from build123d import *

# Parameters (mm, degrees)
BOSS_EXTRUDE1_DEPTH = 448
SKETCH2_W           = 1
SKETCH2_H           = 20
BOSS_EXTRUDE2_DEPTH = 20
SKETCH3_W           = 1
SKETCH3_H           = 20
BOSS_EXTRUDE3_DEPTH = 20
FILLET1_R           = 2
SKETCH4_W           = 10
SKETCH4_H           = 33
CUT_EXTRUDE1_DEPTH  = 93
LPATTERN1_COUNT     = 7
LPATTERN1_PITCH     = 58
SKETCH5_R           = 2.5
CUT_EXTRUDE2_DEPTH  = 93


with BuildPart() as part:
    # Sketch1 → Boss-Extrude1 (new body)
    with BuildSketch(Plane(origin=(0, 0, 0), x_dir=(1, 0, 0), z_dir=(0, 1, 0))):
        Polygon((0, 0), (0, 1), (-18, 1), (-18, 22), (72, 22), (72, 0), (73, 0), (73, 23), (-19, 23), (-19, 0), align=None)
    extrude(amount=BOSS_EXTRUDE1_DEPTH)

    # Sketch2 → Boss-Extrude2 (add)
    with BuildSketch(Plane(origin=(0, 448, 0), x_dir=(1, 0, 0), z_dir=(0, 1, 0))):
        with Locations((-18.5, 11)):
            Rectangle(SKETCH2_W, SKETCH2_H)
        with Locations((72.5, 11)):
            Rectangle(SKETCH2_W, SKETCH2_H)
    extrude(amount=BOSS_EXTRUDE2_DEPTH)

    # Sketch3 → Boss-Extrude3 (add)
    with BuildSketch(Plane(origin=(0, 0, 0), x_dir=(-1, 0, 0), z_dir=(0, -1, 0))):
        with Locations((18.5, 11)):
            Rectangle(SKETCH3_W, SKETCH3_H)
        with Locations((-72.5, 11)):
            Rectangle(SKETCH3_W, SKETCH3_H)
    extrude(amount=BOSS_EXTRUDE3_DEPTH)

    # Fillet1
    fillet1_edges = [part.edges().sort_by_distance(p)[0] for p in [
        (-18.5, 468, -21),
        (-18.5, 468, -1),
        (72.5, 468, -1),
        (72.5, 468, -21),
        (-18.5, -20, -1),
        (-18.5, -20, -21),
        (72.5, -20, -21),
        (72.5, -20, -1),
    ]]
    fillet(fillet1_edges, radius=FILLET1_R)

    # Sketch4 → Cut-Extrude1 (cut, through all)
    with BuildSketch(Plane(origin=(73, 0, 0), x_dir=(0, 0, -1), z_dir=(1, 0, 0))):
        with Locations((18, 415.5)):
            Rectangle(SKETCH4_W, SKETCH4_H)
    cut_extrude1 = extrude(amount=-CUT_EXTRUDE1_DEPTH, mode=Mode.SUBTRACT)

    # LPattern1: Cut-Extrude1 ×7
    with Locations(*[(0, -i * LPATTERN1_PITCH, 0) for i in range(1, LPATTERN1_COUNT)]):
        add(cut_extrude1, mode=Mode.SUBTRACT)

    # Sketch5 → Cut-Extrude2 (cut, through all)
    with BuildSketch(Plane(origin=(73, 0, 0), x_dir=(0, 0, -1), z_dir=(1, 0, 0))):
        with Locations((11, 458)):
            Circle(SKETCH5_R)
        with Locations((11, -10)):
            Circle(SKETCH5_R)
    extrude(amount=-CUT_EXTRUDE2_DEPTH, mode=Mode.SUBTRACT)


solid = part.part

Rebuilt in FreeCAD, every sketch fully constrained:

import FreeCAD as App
import Part
import Sketcher

V = App.Vector


def edges_at(feature, points):
    """Names of the edges that pass closest to the given points."""
    edges = feature.Shape.Edges
    near = lambda p: min(range(len(edges)), key=lambda i: edges[i].distToShape(Part.Vertex(*p))[0])
    return sorted({f"Edge{near(p) + 1}" for p in points})

doc = App.newDocument("Part")
body = doc.addObject("PartDesign::Body", "Body")

# Sketch on XZ plane
sketch1 = body.newObject("Sketcher::SketchObject", "Sketch")
sketch1.AttachmentSupport = (doc.getObject("XZ_Plane"), [""])
sketch1.MapMode = "FlatFace"
sketch1.addGeometry(Part.LineSegment(V(0, 0, 0), V(0, -1, 0)), False)
sketch1.addGeometry(Part.LineSegment(V(0, -1, 0), V(-18, -1, 0)), False)
sketch1.addGeometry(Part.LineSegment(V(-18, -1, 0), V(-18, -22, 0)), False)
sketch1.addGeometry(Part.LineSegment(V(-18, -22, 0), V(72, -22, 0)), False)
sketch1.addGeometry(Part.LineSegment(V(72, -22, 0), V(72, 0, 0)), False)
sketch1.addGeometry(Part.LineSegment(V(72, 0, 0), V(73, 0, 0)), False)
sketch1.addGeometry(Part.LineSegment(V(73, 0, 0), V(73, -23, 0)), False)
sketch1.addGeometry(Part.LineSegment(V(73, -23, 0), V(-19, -23, 0)), False)
sketch1.addGeometry(Part.LineSegment(V(-19, -23, 0), V(-19, 0, 0)), False)
sketch1.addGeometry(Part.LineSegment(V(-19, 0, 0), V(0, 0, 0)), False)
sketch1.addConstraint(Sketcher.Constraint("Coincident", 0, 2, 1, 1))
sketch1.addConstraint(Sketcher.Constraint("Coincident", 1, 2, 2, 1))
sketch1.addConstraint(Sketcher.Constraint("Coincident", 2, 2, 3, 1))
sketch1.addConstraint(Sketcher.Constraint("Coincident", 3, 2, 4, 1))
sketch1.addConstraint(Sketcher.Constraint("Coincident", 4, 2, 5, 1))
sketch1.addConstraint(Sketcher.Constraint("Coincident", 5, 2, 6, 1))
sketch1.addConstraint(Sketcher.Constraint("Coincident", 6, 2, 7, 1))
sketch1.addConstraint(Sketcher.Constraint("Coincident", 7, 2, 8, 1))
sketch1.addConstraint(Sketcher.Constraint("Coincident", 8, 2, 9, 1))
sketch1.addConstraint(Sketcher.Constraint("Coincident", 9, 2, 0, 1))
sketch1.addConstraint(Sketcher.Constraint("Vertical", 0))
sketch1.addConstraint(Sketcher.Constraint("Horizontal", 1))
sketch1.addConstraint(Sketcher.Constraint("Vertical", 2))
sketch1.addConstraint(Sketcher.Constraint("Horizontal", 3))
sketch1.addConstraint(Sketcher.Constraint("Vertical", 4))
sketch1.addConstraint(Sketcher.Constraint("Horizontal", 5))
sketch1.addConstraint(Sketcher.Constraint("Vertical", 6))
sketch1.addConstraint(Sketcher.Constraint("Horizontal", 7))
sketch1.addConstraint(Sketcher.Constraint("Vertical", 8))
sketch1.addConstraint(Sketcher.Constraint("Horizontal", 9))
sketch1.addConstraint(Sketcher.Constraint("Coincident", 9, 2, -1, 1))
sketch1.addConstraint(Sketcher.Constraint("PointOnObject", 4, 2, -1))
sketch1.addConstraint(Sketcher.Constraint("Equal", 5, 0))
sketch1.addConstraint(Sketcher.Constraint("DistanceX", 1, 2, 1, 1, 18.0))
sketch1.addConstraint(Sketcher.Constraint("DistanceX", 3, 1, 3, 2, 90.0))
sketch1.addConstraint(Sketcher.Constraint("DistanceX", 5, 1, 5, 2, 1.0))
sketch1.addConstraint(Sketcher.Constraint("DistanceX", 7, 2, 7, 1, 92.0))
sketch1.addConstraint(Sketcher.Constraint("DistanceY", 2, 2, 2, 1, 21.0))
sketch1.addConstraint(Sketcher.Constraint("DistanceY", 6, 2, 6, 1, 23.0))
pad1 = body.newObject("PartDesign::Pad", "Pad")
pad1.Profile = sketch1
pad1.Length = 448
pad1.Reversed = True

# Sketch on XZ plane
sketch2 = body.newObject("Sketcher::SketchObject", "Sketch001")
sketch2.AttachmentSupport = (doc.getObject("XZ_Plane"), [""])
sketch2.MapMode = "FlatFace"
sketch2.AttachmentOffset = App.Placement(V(0, 0, -448), App.Rotation())
sketch2.addGeometry(Part.LineSegment(V(-19, -21, 0), V(-19, -1, 0)), False)
sketch2.addGeometry(Part.LineSegment(V(-19, -1, 0), V(-18, -1, 0)), False)
sketch2.addGeometry(Part.LineSegment(V(-18, -1, 0), V(-18, -21, 0)), False)
sketch2.addGeometry(Part.LineSegment(V(-18, -21, 0), V(-19, -21, 0)), False)
sketch2.addGeometry(Part.LineSegment(V(72, -21, 0), V(72, -1, 0)), False)
sketch2.addGeometry(Part.LineSegment(V(72, -1, 0), V(73, -1, 0)), False)
sketch2.addGeometry(Part.LineSegment(V(73, -1, 0), V(73, -21, 0)), False)
sketch2.addGeometry(Part.LineSegment(V(73, -21, 0), V(72, -21, 0)), False)
sketch2.addConstraint(Sketcher.Constraint("Coincident", 0, 2, 1, 1))
sketch2.addConstraint(Sketcher.Constraint("Coincident", 1, 2, 2, 1))
sketch2.addConstraint(Sketcher.Constraint("Coincident", 2, 2, 3, 1))
sketch2.addConstraint(Sketcher.Constraint("Coincident", 3, 2, 0, 1))
sketch2.addConstraint(Sketcher.Constraint("Coincident", 4, 2, 5, 1))
sketch2.addConstraint(Sketcher.Constraint("Coincident", 5, 2, 6, 1))
sketch2.addConstraint(Sketcher.Constraint("Coincident", 6, 2, 7, 1))
sketch2.addConstraint(Sketcher.Constraint("Coincident", 7, 2, 4, 1))
sketch2.addConstraint(Sketcher.Constraint("Vertical", 0))
sketch2.addConstraint(Sketcher.Constraint("Horizontal", 1))
sketch2.addConstraint(Sketcher.Constraint("Vertical", 2))
sketch2.addConstraint(Sketcher.Constraint("Horizontal", 3))
sketch2.addConstraint(Sketcher.Constraint("Vertical", 4))
sketch2.addConstraint(Sketcher.Constraint("Horizontal", 5))
sketch2.addConstraint(Sketcher.Constraint("Vertical", 6))
sketch2.addConstraint(Sketcher.Constraint("Horizontal", 7))
sketch2.addConstraint(Sketcher.Constraint("Horizontal", 1, 2, 4, 2))
sketch2.addConstraint(Sketcher.Constraint("Horizontal", 3, 2, 6, 2))
sketch2.addConstraint(Sketcher.Constraint("Equal", 3, 5))
sketch2.addConstraint(Sketcher.Constraint("DistanceX", 1, 1, 1, 2, 1.0))
sketch2.addConstraint(Sketcher.Constraint("DistanceY", 0, 1, 0, 2, 20.0))
sketch2.addConstraint(Sketcher.Constraint("DistanceX", 0, 2, -1, 1, 19.0))
sketch2.addConstraint(Sketcher.Constraint("DistanceY", 0, 2, -1, 1, 1.0))
sketch2.addConstraint(Sketcher.Constraint("DistanceX", -1, 1, 4, 2, 72.0))
pad2 = body.newObject("PartDesign::Pad", "Pad001")
pad2.Profile = sketch2
pad2.Length = 20
pad2.Reversed = True

# Sketch on XZ plane
sketch3 = body.newObject("Sketcher::SketchObject", "Sketch002")
sketch3.AttachmentSupport = (doc.getObject("XZ_Plane"), [""])
sketch3.MapMode = "FlatFace"
sketch3.addGeometry(Part.LineSegment(V(-18, -21, 0), V(-18, -1, 0)), False)
sketch3.addGeometry(Part.LineSegment(V(-18, -1, 0), V(-19, -1, 0)), False)
sketch3.addGeometry(Part.LineSegment(V(-19, -1, 0), V(-19, -21, 0)), False)
sketch3.addGeometry(Part.LineSegment(V(-19, -21, 0), V(-18, -21, 0)), False)
sketch3.addGeometry(Part.LineSegment(V(73, -21, 0), V(73, -1, 0)), False)
sketch3.addGeometry(Part.LineSegment(V(73, -1, 0), V(72, -1, 0)), False)
sketch3.addGeometry(Part.LineSegment(V(72, -1, 0), V(72, -21, 0)), False)
sketch3.addGeometry(Part.LineSegment(V(72, -21, 0), V(73, -21, 0)), False)
sketch3.addConstraint(Sketcher.Constraint("Coincident", 0, 2, 1, 1))
sketch3.addConstraint(Sketcher.Constraint("Coincident", 1, 2, 2, 1))
sketch3.addConstraint(Sketcher.Constraint("Coincident", 2, 2, 3, 1))
sketch3.addConstraint(Sketcher.Constraint("Coincident", 3, 2, 0, 1))
sketch3.addConstraint(Sketcher.Constraint("Coincident", 4, 2, 5, 1))
sketch3.addConstraint(Sketcher.Constraint("Coincident", 5, 2, 6, 1))
sketch3.addConstraint(Sketcher.Constraint("Coincident", 6, 2, 7, 1))
sketch3.addConstraint(Sketcher.Constraint("Coincident", 7, 2, 4, 1))
sketch3.addConstraint(Sketcher.Constraint("Vertical", 0))
sketch3.addConstraint(Sketcher.Constraint("Horizontal", 1))
sketch3.addConstraint(Sketcher.Constraint("Vertical", 2))
sketch3.addConstraint(Sketcher.Constraint("Horizontal", 3))
sketch3.addConstraint(Sketcher.Constraint("Vertical", 4))
sketch3.addConstraint(Sketcher.Constraint("Horizontal", 5))
sketch3.addConstraint(Sketcher.Constraint("Vertical", 6))
sketch3.addConstraint(Sketcher.Constraint("Horizontal", 7))
sketch3.addConstraint(Sketcher.Constraint("Horizontal", 1, 2, 4, 2))
sketch3.addConstraint(Sketcher.Constraint("Horizontal", 3, 2, 6, 2))
sketch3.addConstraint(Sketcher.Constraint("Equal", 3, 5))
sketch3.addConstraint(Sketcher.Constraint("DistanceX", 1, 2, 1, 1, 1.0))
sketch3.addConstraint(Sketcher.Constraint("DistanceY", 0, 1, 0, 2, 20.0))
sketch3.addConstraint(Sketcher.Constraint("DistanceX", 0, 2, -1, 1, 18.0))
sketch3.addConstraint(Sketcher.Constraint("DistanceY", 0, 2, -1, 1, 1.0))
sketch3.addConstraint(Sketcher.Constraint("DistanceX", -1, 1, 4, 2, 73.0))
pad3 = body.newObject("PartDesign::Pad", "Pad002")
pad3.Profile = sketch3
pad3.Length = 20
doc.recompute()

fillet = body.newObject("PartDesign::Fillet", "Fillet")
fillet.Base = (pad3, edges_at(pad3, [
    (-18.5, 468, -21),
    (-18.5, 468, -1),
    (72.5, 468, -1),
    (72.5, 468, -21),
    (-18.5, -20, -1),
    (-18.5, -20, -21),
    (72.5, -20, -21),
    (72.5, -20, -1),
]))
fillet.Radius = 2

# Sketch on YZ plane
sketch4 = body.newObject("Sketcher::SketchObject", "Sketch003")
sketch4.AttachmentSupport = (doc.getObject("YZ_Plane"), [""])
sketch4.MapMode = "FlatFace"
sketch4.AttachmentOffset = App.Placement(V(0, 0, 73), App.Rotation())
sketch4.addGeometry(Part.LineSegment(V(432, -13, 0), V(399, -13, 0)), False)
sketch4.addGeometry(Part.LineSegment(V(399, -13, 0), V(399, -23, 0)), False)
sketch4.addGeometry(Part.LineSegment(V(399, -23, 0), V(432, -23, 0)), False)
sketch4.addGeometry(Part.LineSegment(V(432, -23, 0), V(432, -13, 0)), False)
sketch4.addConstraint(Sketcher.Constraint("Coincident", 0, 2, 1, 1))
sketch4.addConstraint(Sketcher.Constraint("Coincident", 1, 2, 2, 1))
sketch4.addConstraint(Sketcher.Constraint("Coincident", 2, 2, 3, 1))
sketch4.addConstraint(Sketcher.Constraint("Coincident", 3, 2, 0, 1))
sketch4.addConstraint(Sketcher.Constraint("Horizontal", 0))
sketch4.addConstraint(Sketcher.Constraint("Vertical", 1))
sketch4.addConstraint(Sketcher.Constraint("Horizontal", 2))
sketch4.addConstraint(Sketcher.Constraint("Vertical", 3))
sketch4.addConstraint(Sketcher.Constraint("DistanceX", 0, 2, 0, 1, 33.0))
sketch4.addConstraint(Sketcher.Constraint("DistanceY", 1, 2, 1, 1, 10.0))
sketch4.addConstraint(Sketcher.Constraint("DistanceX", -1, 1, 0, 2, 399.0))
sketch4.addConstraint(Sketcher.Constraint("DistanceY", 0, 2, -1, 1, 13.0))
pocket1 = body.newObject("PartDesign::Pocket", "Pocket")
pocket1.Profile = sketch4
pocket1.Type = "ThroughAll"
doc.recompute()

linearpattern = body.newObject("PartDesign::LinearPattern", "LinearPattern")
linearpattern.Originals = [pocket1]
linearpattern.Direction = (doc.getObject("Y_Axis"), [""])
linearpattern.Mode = "offset"
linearpattern.Offset = 58
linearpattern.Occurrences = 7
linearpattern.Reversed = True
body.Tip = linearpattern

# Sketch on YZ plane
sketch5 = body.newObject("Sketcher::SketchObject", "Sketch004")
sketch5.AttachmentSupport = (doc.getObject("YZ_Plane"), [""])
sketch5.MapMode = "FlatFace"
sketch5.AttachmentOffset = App.Placement(V(0, 0, 73), App.Rotation())
sketch5.addGeometry(Part.Circle(V(458, -11, 0), V(0, 0, 1), 2.5), False)
sketch5.addGeometry(Part.Circle(V(-10, -11, 0), V(0, 0, 1), 2.5), False)
sketch5.addConstraint(Sketcher.Constraint("Equal", 0, 1))
sketch5.addConstraint(Sketcher.Constraint("Horizontal", 0, 3, 1, 3))
sketch5.addConstraint(Sketcher.Constraint("Diameter", 0, 5.0))
sketch5.addConstraint(Sketcher.Constraint("DistanceX", -1, 1, 0, 3, 458.0))
sketch5.addConstraint(Sketcher.Constraint("DistanceY", 0, 3, -1, 1, 11.0))
sketch5.addConstraint(Sketcher.Constraint("DistanceX", 1, 3, -1, 1, 10.0))
pocket2 = body.newObject("PartDesign::Pocket", "Pocket001")
pocket2.Profile = sketch5
pocket2.Type = "ThroughAll"

doc.recompute()
